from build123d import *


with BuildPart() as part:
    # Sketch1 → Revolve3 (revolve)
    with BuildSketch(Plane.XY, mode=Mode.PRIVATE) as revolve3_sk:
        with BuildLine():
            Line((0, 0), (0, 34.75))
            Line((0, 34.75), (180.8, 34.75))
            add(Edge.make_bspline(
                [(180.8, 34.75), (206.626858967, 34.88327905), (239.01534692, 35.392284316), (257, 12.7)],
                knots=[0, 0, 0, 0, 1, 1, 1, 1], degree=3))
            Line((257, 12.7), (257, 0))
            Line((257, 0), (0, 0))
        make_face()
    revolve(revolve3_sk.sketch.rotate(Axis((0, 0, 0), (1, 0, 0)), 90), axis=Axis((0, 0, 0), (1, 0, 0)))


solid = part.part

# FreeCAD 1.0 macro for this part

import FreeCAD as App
import Part
import Sketcher

V = App.Vector

doc = App.newDocument("Part")
body = doc.addObject("PartDesign::Body", "Body")

sketch1 = body.newObject("Sketcher::SketchObject", "Sketch")
sketch1.AttachmentSupport = (doc.getObject("XY_Plane"), [""])
sketch1.MapMode = "FlatFace"
sketch1.addGeometry(Part.LineSegment(V(0, 34.75, 0), V(0, 0, 0)), False)
sketch1.addGeometry(Part.LineSegment(V(0, 0, 0), V(257, 0, 0)), False)
sketch1.addGeometry(Part.LineSegment(V(257, 0, 0), V(257, 12.7, 0)), False)
sketch1.addGeometry(Part.BSplineCurve([V(180.8, 34.75, 0), V(206.626859, 34.883279, 0), V(239.015347, 35.392284, 0), V(257, 12.7, 0)], [4, 4], [0, 1], False, 3, [1, 1, 1, 1], False), False)
sketch1.addGeometry(Part.LineSegment(V(180.8, 34.75, 0), V(0, 34.75, 0)), False)
sketch1.addConstraint(Sketcher.Constraint("Block", 3))
sketch1.addConstraint(Sketcher.Constraint("Coincident", 0, 2, 1, 1))
sketch1.addConstraint(Sketcher.Constraint("Coincident", 1, 2, 2, 1))
sketch1.addConstraint(Sketcher.Constraint("Coincident", 2, 2, 3, 2))
sketch1.addConstraint(Sketcher.Constraint("Coincident", 3, 1, 4, 1))
sketch1.addConstraint(Sketcher.Constraint("Coincident", 4, 2, 0, 1))
sketch1.addConstraint(Sketcher.Constraint("Vertical", 0))
sketch1.addConstraint(Sketcher.Constraint("Horizontal", 1))
sketch1.addConstraint(Sketcher.Constraint("Vertical", 2))
sketch1.addConstraint(Sketcher.Constraint("Horizontal", 4))
sketch1.addConstraint(Sketcher.Constraint("Coincident", 0, 2, -1, 1))
revolution = body.newObject("PartDesign::Revolution", "Revolution")
revolution.Profile = sketch1
revolution.ReferenceAxis = (sketch1, ["H_Axis"])
revolution.Angle = 360

doc.recompute()
